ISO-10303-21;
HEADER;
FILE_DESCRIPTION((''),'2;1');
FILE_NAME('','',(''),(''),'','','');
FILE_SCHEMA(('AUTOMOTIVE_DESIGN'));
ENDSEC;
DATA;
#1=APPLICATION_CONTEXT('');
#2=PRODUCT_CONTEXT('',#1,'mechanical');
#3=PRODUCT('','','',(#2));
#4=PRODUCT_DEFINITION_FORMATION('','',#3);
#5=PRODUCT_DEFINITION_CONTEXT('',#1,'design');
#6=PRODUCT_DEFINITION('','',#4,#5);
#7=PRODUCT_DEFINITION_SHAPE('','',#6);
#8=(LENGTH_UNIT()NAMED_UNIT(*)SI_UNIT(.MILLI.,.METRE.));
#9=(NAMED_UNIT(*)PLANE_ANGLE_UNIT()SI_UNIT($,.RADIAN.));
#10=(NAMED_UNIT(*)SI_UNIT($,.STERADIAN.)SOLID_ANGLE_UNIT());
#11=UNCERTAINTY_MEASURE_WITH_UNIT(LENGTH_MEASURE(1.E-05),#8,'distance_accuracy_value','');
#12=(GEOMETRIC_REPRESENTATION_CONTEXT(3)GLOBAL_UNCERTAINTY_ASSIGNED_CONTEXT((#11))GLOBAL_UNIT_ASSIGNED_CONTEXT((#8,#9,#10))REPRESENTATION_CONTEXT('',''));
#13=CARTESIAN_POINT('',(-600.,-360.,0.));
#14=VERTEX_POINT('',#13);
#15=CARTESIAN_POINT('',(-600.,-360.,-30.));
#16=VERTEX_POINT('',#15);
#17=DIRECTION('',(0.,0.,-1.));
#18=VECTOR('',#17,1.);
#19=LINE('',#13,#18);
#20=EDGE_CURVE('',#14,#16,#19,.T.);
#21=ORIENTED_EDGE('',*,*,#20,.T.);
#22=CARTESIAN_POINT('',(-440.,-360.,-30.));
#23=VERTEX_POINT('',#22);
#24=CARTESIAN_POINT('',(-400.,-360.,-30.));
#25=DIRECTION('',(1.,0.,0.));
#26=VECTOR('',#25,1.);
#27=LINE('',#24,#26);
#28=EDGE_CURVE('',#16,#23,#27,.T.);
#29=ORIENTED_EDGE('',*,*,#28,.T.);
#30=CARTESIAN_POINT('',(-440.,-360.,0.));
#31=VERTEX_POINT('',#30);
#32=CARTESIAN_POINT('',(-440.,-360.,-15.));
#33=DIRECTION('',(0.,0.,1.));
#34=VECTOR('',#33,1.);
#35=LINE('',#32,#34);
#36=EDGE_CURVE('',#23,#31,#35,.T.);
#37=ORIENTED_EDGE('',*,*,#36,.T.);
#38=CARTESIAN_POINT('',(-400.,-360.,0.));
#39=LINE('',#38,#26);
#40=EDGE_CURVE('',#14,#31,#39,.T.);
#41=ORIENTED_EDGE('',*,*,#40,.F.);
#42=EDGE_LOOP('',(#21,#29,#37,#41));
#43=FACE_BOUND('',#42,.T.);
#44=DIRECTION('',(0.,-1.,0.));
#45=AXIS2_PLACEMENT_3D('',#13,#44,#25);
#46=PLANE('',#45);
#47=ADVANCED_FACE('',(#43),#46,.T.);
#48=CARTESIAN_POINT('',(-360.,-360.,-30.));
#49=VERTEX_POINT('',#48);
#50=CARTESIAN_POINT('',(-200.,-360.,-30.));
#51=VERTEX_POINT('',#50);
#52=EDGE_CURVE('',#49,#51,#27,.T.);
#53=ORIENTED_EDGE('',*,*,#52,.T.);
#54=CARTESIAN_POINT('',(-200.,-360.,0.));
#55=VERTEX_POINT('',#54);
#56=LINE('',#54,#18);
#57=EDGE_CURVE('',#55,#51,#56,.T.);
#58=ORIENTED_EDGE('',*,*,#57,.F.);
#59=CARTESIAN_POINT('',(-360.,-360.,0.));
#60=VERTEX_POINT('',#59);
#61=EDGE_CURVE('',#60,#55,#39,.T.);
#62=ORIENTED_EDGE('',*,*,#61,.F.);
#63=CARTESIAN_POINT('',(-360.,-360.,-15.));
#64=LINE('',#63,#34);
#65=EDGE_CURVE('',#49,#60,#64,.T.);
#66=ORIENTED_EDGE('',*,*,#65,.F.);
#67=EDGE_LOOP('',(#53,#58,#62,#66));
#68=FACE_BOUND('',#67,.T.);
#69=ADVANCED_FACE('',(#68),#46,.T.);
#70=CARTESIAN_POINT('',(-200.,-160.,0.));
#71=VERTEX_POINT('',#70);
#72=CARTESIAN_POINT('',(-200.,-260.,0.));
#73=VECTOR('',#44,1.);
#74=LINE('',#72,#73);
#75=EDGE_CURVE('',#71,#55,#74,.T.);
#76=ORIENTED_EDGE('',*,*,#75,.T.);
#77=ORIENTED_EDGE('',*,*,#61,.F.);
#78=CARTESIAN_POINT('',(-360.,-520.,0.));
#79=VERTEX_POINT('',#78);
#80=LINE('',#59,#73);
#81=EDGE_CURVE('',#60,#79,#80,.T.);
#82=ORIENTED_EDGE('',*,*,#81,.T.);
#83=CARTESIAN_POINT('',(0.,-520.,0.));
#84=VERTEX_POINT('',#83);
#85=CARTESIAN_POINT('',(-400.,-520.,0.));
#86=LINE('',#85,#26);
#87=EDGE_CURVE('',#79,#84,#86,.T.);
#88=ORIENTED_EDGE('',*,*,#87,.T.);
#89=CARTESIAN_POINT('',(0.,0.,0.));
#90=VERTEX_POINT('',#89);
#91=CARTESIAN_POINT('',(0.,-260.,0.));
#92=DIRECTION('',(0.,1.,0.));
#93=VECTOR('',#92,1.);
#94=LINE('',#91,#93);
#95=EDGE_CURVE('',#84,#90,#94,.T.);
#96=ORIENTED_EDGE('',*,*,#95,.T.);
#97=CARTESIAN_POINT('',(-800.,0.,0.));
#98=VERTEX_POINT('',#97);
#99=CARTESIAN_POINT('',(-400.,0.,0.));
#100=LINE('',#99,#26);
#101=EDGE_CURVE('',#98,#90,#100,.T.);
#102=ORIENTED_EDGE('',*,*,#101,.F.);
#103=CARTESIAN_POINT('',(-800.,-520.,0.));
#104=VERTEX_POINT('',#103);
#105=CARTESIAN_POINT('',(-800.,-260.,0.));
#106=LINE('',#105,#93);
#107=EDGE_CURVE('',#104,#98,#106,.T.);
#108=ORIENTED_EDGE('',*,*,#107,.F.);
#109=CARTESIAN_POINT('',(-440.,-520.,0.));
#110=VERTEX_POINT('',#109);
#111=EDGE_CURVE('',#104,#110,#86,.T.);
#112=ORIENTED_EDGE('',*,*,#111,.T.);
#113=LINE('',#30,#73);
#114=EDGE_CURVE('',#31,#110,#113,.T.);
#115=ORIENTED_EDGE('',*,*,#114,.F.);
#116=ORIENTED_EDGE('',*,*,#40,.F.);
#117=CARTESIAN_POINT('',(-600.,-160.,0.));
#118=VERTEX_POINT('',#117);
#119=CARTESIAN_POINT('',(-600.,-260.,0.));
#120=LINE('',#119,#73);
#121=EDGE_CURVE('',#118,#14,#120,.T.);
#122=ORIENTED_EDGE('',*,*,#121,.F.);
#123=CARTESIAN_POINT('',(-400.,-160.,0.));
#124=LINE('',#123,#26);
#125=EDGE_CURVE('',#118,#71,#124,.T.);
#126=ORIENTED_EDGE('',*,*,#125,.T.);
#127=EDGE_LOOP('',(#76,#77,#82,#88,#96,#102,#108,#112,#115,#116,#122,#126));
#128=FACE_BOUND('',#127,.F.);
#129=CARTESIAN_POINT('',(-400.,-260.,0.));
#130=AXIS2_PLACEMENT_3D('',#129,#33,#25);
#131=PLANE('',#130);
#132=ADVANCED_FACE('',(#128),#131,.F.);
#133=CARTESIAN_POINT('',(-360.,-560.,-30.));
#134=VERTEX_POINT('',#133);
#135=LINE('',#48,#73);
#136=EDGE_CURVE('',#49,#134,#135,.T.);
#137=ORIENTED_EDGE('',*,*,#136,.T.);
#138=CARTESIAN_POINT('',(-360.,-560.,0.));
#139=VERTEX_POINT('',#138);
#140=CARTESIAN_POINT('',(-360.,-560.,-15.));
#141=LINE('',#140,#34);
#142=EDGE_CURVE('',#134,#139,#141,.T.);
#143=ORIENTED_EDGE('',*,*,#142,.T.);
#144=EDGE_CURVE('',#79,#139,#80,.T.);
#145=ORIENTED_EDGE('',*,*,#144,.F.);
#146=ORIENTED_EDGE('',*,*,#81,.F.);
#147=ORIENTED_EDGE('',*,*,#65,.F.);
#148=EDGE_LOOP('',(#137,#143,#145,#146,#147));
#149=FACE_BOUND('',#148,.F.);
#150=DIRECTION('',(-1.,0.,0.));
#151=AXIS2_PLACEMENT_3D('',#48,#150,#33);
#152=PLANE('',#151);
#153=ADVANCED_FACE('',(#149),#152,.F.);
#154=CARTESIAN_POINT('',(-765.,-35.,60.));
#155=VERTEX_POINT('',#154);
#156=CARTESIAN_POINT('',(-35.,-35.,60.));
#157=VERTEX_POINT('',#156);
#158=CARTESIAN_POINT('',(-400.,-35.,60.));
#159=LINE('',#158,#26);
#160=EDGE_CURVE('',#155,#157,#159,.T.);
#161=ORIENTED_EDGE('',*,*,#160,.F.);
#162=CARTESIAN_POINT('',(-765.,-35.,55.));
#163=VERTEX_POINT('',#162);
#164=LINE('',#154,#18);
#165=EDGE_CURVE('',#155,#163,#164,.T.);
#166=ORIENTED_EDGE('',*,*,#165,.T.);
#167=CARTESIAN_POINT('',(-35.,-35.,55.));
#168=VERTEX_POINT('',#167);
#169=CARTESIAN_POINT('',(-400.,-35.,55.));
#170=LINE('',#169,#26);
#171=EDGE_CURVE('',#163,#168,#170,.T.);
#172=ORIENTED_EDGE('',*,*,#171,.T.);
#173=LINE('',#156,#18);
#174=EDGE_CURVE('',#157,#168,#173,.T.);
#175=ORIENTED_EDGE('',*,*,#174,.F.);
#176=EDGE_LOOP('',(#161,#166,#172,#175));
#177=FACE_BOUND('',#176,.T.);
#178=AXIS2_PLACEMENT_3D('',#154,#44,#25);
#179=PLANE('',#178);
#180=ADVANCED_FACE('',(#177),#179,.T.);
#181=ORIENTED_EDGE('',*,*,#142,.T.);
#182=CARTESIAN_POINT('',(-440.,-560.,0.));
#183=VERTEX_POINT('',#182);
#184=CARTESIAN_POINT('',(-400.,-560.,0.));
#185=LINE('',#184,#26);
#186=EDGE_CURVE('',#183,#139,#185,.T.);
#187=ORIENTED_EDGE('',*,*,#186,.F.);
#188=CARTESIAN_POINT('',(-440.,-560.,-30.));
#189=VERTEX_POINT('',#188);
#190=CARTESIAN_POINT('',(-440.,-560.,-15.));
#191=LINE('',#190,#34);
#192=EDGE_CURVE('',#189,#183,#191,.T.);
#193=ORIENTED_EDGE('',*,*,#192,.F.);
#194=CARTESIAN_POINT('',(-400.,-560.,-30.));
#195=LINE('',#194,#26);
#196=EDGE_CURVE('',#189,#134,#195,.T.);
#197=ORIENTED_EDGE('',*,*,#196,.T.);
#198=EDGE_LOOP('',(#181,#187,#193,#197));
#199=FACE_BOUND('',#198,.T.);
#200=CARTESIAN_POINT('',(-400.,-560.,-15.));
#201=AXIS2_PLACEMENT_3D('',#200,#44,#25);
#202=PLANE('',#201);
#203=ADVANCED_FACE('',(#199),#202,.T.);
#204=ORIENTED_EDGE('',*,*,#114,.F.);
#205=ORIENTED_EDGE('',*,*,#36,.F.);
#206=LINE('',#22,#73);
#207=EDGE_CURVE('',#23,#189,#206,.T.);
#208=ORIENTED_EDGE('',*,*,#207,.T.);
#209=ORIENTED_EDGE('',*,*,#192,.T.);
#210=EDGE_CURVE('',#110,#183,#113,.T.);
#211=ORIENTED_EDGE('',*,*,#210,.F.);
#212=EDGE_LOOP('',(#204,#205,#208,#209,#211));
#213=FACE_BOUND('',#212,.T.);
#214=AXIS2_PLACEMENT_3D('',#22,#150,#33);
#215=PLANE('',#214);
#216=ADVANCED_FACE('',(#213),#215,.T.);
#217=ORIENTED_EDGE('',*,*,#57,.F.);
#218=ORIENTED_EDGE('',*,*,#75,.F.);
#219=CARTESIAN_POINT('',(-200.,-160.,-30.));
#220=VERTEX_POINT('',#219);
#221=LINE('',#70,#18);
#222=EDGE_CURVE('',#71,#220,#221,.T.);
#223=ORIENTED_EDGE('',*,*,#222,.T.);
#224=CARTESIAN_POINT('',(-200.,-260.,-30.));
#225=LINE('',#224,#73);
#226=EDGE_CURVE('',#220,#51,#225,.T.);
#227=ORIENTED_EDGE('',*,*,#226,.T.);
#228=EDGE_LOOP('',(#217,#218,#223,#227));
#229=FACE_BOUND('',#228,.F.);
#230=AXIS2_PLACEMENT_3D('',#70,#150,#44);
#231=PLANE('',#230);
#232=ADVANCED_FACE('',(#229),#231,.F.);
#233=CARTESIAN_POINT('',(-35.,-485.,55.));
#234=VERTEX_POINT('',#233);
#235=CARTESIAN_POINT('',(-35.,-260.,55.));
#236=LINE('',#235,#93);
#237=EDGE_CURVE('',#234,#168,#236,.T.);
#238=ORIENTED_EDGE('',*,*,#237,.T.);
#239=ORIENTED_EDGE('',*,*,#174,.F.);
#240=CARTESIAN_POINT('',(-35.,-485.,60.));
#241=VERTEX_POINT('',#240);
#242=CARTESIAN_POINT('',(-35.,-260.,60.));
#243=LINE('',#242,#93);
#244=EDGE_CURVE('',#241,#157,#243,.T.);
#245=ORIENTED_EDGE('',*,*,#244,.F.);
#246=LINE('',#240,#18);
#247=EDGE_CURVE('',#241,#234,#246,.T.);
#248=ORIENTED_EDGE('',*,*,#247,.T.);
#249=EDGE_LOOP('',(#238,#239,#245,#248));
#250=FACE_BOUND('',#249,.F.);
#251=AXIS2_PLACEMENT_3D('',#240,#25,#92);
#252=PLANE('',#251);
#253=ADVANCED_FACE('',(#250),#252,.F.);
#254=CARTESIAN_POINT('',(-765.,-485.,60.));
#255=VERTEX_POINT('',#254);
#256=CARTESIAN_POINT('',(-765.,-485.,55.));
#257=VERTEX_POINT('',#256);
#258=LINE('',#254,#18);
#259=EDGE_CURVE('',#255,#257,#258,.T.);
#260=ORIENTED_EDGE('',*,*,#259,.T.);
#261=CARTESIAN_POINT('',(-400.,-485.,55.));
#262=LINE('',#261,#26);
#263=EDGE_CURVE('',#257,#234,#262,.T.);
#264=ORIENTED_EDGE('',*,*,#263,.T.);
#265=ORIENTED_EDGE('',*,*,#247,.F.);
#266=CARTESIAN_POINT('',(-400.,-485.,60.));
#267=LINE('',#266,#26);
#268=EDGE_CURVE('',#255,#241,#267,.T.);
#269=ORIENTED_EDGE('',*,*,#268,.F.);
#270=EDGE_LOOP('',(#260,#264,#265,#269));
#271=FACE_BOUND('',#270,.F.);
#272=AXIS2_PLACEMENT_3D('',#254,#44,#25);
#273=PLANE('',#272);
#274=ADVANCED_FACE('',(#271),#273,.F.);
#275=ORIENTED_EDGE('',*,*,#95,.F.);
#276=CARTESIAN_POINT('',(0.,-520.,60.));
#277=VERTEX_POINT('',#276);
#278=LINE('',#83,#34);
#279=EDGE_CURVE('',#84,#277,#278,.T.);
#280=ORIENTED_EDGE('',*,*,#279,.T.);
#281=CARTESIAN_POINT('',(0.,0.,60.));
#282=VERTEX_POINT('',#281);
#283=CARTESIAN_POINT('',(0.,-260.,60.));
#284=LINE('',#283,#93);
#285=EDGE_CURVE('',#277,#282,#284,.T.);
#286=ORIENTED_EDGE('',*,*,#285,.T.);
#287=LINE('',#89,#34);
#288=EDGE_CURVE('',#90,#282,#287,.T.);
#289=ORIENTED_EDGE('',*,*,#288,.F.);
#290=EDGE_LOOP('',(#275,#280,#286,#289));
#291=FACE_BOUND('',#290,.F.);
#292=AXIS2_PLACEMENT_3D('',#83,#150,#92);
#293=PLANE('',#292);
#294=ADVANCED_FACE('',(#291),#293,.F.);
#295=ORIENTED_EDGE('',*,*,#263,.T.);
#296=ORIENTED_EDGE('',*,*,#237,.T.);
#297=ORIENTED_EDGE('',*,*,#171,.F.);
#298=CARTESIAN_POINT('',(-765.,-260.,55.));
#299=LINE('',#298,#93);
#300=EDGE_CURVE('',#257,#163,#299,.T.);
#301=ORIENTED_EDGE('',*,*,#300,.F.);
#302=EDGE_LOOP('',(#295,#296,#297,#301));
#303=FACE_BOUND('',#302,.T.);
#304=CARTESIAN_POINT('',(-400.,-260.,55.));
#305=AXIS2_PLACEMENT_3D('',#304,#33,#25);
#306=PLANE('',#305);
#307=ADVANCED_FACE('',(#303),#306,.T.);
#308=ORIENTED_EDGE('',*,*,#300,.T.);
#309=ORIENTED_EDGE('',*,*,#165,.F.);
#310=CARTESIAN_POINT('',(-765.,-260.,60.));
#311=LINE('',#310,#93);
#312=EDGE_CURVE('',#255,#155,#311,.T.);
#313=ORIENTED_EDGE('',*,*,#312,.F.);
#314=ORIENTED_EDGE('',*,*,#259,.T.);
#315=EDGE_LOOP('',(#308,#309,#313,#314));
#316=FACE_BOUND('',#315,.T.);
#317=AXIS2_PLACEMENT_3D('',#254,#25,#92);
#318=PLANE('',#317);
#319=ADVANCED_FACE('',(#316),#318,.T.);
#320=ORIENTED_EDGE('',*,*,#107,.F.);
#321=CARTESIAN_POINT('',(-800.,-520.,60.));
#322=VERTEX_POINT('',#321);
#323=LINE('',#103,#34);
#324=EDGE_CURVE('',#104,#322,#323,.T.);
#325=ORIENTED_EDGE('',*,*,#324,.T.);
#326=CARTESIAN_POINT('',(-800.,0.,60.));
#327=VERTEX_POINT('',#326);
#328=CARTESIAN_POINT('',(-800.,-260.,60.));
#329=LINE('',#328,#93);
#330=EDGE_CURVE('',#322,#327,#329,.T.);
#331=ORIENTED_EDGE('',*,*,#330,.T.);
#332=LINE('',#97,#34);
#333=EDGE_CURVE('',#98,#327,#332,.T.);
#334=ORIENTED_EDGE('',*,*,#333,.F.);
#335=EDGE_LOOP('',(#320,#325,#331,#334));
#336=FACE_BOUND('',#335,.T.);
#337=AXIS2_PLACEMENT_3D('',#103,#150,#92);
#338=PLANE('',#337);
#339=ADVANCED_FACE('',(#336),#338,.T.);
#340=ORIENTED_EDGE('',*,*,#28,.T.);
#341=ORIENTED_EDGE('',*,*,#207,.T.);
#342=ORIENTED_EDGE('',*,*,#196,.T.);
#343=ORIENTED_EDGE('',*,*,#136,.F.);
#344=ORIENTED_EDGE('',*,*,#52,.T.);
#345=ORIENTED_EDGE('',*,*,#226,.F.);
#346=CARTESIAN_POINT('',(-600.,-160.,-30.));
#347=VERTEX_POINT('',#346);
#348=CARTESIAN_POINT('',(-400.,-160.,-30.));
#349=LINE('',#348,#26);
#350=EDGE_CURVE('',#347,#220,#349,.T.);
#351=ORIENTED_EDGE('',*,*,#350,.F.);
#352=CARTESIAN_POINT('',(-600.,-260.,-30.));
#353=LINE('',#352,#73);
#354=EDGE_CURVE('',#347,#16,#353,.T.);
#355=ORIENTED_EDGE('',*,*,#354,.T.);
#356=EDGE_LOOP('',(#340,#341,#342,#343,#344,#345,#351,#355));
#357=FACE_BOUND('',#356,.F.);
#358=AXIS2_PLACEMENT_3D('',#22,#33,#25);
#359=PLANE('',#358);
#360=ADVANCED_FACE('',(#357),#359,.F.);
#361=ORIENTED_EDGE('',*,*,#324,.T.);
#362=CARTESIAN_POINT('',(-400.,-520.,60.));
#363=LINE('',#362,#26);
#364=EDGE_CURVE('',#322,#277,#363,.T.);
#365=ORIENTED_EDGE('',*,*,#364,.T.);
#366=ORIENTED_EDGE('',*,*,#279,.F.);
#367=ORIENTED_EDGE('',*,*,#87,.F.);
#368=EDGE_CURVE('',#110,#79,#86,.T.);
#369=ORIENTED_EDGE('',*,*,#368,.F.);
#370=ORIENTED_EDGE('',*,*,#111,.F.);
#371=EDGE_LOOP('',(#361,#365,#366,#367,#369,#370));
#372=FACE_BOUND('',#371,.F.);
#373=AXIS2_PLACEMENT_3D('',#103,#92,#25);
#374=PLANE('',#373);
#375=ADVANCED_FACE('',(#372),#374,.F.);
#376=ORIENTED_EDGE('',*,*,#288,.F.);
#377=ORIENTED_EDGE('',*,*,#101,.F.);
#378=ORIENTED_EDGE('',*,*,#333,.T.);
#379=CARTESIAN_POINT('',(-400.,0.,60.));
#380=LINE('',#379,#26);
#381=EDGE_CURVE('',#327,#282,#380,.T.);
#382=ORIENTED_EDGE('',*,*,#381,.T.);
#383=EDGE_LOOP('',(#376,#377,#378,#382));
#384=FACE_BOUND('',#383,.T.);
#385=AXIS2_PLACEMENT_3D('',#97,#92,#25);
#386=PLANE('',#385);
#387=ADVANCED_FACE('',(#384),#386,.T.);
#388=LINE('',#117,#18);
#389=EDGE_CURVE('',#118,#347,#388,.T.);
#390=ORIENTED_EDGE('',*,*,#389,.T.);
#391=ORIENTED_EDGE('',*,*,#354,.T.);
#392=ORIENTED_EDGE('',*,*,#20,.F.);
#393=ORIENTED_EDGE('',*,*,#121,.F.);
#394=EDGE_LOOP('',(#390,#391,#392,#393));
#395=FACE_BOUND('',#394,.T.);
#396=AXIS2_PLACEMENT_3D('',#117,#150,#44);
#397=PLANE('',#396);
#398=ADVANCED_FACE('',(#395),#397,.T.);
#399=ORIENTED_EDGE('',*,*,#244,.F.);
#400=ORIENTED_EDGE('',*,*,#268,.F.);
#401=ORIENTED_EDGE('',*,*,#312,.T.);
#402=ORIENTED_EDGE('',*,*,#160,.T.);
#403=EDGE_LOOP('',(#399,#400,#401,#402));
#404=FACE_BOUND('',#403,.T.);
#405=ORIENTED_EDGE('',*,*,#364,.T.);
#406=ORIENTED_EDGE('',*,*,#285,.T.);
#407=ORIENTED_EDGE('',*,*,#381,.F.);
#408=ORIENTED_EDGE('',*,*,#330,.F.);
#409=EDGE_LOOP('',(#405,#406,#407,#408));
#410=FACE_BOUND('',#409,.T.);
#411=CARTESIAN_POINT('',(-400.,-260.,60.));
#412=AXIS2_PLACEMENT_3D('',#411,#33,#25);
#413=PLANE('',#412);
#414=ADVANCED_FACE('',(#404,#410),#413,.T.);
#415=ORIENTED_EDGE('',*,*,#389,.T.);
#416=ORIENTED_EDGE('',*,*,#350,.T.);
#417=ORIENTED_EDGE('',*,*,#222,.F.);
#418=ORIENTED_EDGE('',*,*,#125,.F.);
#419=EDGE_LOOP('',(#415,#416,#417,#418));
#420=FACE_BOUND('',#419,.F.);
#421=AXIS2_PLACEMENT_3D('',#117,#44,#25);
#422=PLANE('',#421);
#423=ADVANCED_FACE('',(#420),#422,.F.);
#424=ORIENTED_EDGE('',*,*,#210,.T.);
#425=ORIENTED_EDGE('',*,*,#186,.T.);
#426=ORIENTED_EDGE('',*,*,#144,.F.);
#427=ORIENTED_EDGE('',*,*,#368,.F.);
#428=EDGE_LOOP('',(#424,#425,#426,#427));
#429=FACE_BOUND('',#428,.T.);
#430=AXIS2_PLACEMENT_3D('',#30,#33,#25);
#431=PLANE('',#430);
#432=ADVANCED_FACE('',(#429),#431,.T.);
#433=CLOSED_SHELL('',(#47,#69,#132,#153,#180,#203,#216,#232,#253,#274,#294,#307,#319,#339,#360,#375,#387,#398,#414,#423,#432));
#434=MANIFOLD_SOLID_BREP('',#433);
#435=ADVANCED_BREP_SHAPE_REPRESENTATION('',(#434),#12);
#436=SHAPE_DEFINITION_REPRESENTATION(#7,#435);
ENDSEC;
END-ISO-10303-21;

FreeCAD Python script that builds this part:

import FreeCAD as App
import Part
import Sketcher
from FreeCAD import Vector

doc = App.newDocument("Part")
body = doc.addObject("PartDesign::Body", "Body")

sketch1 = body.newObject("Sketcher::SketchObject", "Sketch")
sketch1.AttachmentSupport = (doc.getObject("XY_Plane"), [""])
sketch1.MapMode = "FlatFace"
sketch1.addGeometry([
    Part.LineSegment(Vector(-800, 0, 0), Vector(-800, -520, 0)),
    Part.LineSegment(Vector(-800, -520, 0), Vector(0, -520, 0)),
    Part.LineSegment(Vector(0, -520, 0), Vector(0, 0, 0)),
    Part.LineSegment(Vector(0, 0, 0), Vector(-800, 0, 0)),
], False)
sketch1.addConstraint([
    Sketcher.Constraint("Coincident", 0, 2, 1, 1),
    Sketcher.Constraint("Coincident", 1, 2, 2, 1),
    Sketcher.Constraint("Coincident", 2, 2, 3, 1),
    Sketcher.Constraint("Coincident", 3, 2, 0, 1),
    Sketcher.Constraint("Vertical", 0),
    Sketcher.Constraint("Horizontal", 1),
    Sketcher.Constraint("Vertical", 2),
    Sketcher.Constraint("Horizontal", 3),
    Sketcher.Constraint("Coincident", 2, 2, -1, 1),
    Sketcher.Constraint("DistanceX", 1, 1, 1, 2, 800.0),
    Sketcher.Constraint("DistanceY", 0, 2, 0, 1, 520.0),
])
pad1 = body.newObject("PartDesign::Pad", "Pad")
pad1.Profile = sketch1
pad1.Length = 60

sketch2 = body.newObject("Sketcher::SketchObject", "Sketch001")
sketch2.AttachmentSupport = (doc.getObject("XY_Plane"), [""])
sketch2.MapMode = "FlatFace"
sketch2.addGeometry([
    Part.LineSegment(Vector(-600, -360, 0), Vector(-600, -160, 0)),
    Part.LineSegment(Vector(-600, -160, 0), Vector(-200, -160, 0)),
    Part.LineSegment(Vector(-200, -160, 0), Vector(-200, -360, 0)),
    Part.LineSegment(Vector(-200, -360, 0), Vector(-600, -360, 0)),
], False)
sketch2.addConstraint([
    Sketcher.Constraint("Coincident", 0, 2, 1, 1),
    Sketcher.Constraint("Coincident", 1, 2, 2, 1),
    Sketcher.Constraint("Coincident", 2, 2, 3, 1),
    Sketcher.Constraint("Coincident", 3, 2, 0, 1),
    Sketcher.Constraint("Vertical", 0),
    Sketcher.Constraint("Horizontal", 1),
    Sketcher.Constraint("Vertical", 2),
    Sketcher.Constraint("Horizontal", 3),
    Sketcher.Constraint("DistanceX", 1, 1, 1, 2, 400.0),
    Sketcher.Constraint("DistanceY", 0, 1, 0, 2, 200.0),
    Sketcher.Constraint("DistanceX", 0, 2, -1, 1, 600.0),
    Sketcher.Constraint("DistanceY", 0, 2, -1, 1, 160.0),
])
pad2 = body.newObject("PartDesign::Pad", "Pad001")
pad2.Profile = sketch2
pad2.Length = 30
pad2.Reversed = True

sketch3 = body.newObject("Sketcher::SketchObject", "Sketch002")
sketch3.AttachmentSupport = (doc.getObject("XZ_Plane"), [""])
sketch3.MapMode = "FlatFace"
sketch3.AttachmentOffset = App.Placement(Vector(0, 0, 360), App.Rotation())
sketch3.addGeometry([
    Part.LineSegment(Vector(-440, 0, 0), Vector(-440, -30, 0)),
    Part.LineSegment(Vector(-440, -30, 0), Vector(-360, -30, 0)),
    Part.LineSegment(Vector(-360, -30, 0), Vector(-360, 0, 0)),
    Part.LineSegment(Vector(-360, 0, 0), Vector(-440, 0, 0)),
], False)
sketch3.addConstraint([
    Sketcher.Constraint("Coincident", 0, 2, 1, 1),
    Sketcher.Constraint("Coincident", 1, 2, 2, 1),
    Sketcher.Constraint("Coincident", 2, 2, 3, 1),
    Sketcher.Constraint("Coincident", 3, 2, 0, 1),
    Sketcher.Constraint("Vertical", 0),
    Sketcher.Constraint("Horizontal", 1),
    Sketcher.Constraint("Vertical", 2),
    Sketcher.Constraint("Horizontal", 3),
    Sketcher.Constraint("PointOnObject", 2, 2, -1),
    Sketcher.Constraint("DistanceX", 1, 1, 1, 2, 80.0),
    Sketcher.Constraint("DistanceY", 0, 2, 0, 1, 30.0),
    Sketcher.Constraint("DistanceX", 0, 2, -1, 1, 440.0),
])
pad3 = body.newObject("PartDesign::Pad", "Pad002")
pad3.Profile = sketch3
pad3.Length = 200

sketch4 = body.newObject("Sketcher::SketchObject", "Sketch003")
sketch4.AttachmentSupport = (doc.getObject("XY_Plane"), [""])
sketch4.MapMode = "FlatFace"
sketch4.AttachmentOffset = App.Placement(Vector(0, 0, 60), App.Rotation())
sketch4.addGeometry([
    Part.LineSegment(Vector(-765, -35, 0), Vector(-765, -485, 0)),
    Part.LineSegment(Vector(-765, -485, 0), Vector(-35, -485, 0)),
    Part.LineSegment(Vector(-35, -485, 0), Vector(-35, -35, 0)),
    Part.LineSegment(Vector(-35, -35, 0), Vector(-765, -35, 0)),
], False)
sketch4.addConstraint([
    Sketcher.Constraint("Coincident", 0, 2, 1, 1),
    Sketcher.Constraint("Coincident", 1, 2, 2, 1),
    Sketcher.Constraint("Coincident", 2, 2, 3, 1),
    Sketcher.Constraint("Coincident", 3, 2, 0, 1),
    Sketcher.Constraint("Vertical", 0),
    Sketcher.Constraint("Horizontal", 1),
    Sketcher.Constraint("Vertical", 2),
    Sketcher.Constraint("Horizontal", 3),
    Sketcher.Constraint("DistanceX", 1, 1, 1, 2, 730.0),
    Sketcher.Constraint("DistanceY", 0, 2, 0, 1, 450.0),
    Sketcher.Constraint("DistanceX", 0, 2, -1, 1, 765.0),
    Sketcher.Constraint("DistanceY", 0, 2, -1, 1, 485.0),
])
pocket1 = body.newObject("PartDesign::Pocket", "Pocket")
pocket1.Profile = sketch4
pocket1.Length = 5

doc.recompute()
